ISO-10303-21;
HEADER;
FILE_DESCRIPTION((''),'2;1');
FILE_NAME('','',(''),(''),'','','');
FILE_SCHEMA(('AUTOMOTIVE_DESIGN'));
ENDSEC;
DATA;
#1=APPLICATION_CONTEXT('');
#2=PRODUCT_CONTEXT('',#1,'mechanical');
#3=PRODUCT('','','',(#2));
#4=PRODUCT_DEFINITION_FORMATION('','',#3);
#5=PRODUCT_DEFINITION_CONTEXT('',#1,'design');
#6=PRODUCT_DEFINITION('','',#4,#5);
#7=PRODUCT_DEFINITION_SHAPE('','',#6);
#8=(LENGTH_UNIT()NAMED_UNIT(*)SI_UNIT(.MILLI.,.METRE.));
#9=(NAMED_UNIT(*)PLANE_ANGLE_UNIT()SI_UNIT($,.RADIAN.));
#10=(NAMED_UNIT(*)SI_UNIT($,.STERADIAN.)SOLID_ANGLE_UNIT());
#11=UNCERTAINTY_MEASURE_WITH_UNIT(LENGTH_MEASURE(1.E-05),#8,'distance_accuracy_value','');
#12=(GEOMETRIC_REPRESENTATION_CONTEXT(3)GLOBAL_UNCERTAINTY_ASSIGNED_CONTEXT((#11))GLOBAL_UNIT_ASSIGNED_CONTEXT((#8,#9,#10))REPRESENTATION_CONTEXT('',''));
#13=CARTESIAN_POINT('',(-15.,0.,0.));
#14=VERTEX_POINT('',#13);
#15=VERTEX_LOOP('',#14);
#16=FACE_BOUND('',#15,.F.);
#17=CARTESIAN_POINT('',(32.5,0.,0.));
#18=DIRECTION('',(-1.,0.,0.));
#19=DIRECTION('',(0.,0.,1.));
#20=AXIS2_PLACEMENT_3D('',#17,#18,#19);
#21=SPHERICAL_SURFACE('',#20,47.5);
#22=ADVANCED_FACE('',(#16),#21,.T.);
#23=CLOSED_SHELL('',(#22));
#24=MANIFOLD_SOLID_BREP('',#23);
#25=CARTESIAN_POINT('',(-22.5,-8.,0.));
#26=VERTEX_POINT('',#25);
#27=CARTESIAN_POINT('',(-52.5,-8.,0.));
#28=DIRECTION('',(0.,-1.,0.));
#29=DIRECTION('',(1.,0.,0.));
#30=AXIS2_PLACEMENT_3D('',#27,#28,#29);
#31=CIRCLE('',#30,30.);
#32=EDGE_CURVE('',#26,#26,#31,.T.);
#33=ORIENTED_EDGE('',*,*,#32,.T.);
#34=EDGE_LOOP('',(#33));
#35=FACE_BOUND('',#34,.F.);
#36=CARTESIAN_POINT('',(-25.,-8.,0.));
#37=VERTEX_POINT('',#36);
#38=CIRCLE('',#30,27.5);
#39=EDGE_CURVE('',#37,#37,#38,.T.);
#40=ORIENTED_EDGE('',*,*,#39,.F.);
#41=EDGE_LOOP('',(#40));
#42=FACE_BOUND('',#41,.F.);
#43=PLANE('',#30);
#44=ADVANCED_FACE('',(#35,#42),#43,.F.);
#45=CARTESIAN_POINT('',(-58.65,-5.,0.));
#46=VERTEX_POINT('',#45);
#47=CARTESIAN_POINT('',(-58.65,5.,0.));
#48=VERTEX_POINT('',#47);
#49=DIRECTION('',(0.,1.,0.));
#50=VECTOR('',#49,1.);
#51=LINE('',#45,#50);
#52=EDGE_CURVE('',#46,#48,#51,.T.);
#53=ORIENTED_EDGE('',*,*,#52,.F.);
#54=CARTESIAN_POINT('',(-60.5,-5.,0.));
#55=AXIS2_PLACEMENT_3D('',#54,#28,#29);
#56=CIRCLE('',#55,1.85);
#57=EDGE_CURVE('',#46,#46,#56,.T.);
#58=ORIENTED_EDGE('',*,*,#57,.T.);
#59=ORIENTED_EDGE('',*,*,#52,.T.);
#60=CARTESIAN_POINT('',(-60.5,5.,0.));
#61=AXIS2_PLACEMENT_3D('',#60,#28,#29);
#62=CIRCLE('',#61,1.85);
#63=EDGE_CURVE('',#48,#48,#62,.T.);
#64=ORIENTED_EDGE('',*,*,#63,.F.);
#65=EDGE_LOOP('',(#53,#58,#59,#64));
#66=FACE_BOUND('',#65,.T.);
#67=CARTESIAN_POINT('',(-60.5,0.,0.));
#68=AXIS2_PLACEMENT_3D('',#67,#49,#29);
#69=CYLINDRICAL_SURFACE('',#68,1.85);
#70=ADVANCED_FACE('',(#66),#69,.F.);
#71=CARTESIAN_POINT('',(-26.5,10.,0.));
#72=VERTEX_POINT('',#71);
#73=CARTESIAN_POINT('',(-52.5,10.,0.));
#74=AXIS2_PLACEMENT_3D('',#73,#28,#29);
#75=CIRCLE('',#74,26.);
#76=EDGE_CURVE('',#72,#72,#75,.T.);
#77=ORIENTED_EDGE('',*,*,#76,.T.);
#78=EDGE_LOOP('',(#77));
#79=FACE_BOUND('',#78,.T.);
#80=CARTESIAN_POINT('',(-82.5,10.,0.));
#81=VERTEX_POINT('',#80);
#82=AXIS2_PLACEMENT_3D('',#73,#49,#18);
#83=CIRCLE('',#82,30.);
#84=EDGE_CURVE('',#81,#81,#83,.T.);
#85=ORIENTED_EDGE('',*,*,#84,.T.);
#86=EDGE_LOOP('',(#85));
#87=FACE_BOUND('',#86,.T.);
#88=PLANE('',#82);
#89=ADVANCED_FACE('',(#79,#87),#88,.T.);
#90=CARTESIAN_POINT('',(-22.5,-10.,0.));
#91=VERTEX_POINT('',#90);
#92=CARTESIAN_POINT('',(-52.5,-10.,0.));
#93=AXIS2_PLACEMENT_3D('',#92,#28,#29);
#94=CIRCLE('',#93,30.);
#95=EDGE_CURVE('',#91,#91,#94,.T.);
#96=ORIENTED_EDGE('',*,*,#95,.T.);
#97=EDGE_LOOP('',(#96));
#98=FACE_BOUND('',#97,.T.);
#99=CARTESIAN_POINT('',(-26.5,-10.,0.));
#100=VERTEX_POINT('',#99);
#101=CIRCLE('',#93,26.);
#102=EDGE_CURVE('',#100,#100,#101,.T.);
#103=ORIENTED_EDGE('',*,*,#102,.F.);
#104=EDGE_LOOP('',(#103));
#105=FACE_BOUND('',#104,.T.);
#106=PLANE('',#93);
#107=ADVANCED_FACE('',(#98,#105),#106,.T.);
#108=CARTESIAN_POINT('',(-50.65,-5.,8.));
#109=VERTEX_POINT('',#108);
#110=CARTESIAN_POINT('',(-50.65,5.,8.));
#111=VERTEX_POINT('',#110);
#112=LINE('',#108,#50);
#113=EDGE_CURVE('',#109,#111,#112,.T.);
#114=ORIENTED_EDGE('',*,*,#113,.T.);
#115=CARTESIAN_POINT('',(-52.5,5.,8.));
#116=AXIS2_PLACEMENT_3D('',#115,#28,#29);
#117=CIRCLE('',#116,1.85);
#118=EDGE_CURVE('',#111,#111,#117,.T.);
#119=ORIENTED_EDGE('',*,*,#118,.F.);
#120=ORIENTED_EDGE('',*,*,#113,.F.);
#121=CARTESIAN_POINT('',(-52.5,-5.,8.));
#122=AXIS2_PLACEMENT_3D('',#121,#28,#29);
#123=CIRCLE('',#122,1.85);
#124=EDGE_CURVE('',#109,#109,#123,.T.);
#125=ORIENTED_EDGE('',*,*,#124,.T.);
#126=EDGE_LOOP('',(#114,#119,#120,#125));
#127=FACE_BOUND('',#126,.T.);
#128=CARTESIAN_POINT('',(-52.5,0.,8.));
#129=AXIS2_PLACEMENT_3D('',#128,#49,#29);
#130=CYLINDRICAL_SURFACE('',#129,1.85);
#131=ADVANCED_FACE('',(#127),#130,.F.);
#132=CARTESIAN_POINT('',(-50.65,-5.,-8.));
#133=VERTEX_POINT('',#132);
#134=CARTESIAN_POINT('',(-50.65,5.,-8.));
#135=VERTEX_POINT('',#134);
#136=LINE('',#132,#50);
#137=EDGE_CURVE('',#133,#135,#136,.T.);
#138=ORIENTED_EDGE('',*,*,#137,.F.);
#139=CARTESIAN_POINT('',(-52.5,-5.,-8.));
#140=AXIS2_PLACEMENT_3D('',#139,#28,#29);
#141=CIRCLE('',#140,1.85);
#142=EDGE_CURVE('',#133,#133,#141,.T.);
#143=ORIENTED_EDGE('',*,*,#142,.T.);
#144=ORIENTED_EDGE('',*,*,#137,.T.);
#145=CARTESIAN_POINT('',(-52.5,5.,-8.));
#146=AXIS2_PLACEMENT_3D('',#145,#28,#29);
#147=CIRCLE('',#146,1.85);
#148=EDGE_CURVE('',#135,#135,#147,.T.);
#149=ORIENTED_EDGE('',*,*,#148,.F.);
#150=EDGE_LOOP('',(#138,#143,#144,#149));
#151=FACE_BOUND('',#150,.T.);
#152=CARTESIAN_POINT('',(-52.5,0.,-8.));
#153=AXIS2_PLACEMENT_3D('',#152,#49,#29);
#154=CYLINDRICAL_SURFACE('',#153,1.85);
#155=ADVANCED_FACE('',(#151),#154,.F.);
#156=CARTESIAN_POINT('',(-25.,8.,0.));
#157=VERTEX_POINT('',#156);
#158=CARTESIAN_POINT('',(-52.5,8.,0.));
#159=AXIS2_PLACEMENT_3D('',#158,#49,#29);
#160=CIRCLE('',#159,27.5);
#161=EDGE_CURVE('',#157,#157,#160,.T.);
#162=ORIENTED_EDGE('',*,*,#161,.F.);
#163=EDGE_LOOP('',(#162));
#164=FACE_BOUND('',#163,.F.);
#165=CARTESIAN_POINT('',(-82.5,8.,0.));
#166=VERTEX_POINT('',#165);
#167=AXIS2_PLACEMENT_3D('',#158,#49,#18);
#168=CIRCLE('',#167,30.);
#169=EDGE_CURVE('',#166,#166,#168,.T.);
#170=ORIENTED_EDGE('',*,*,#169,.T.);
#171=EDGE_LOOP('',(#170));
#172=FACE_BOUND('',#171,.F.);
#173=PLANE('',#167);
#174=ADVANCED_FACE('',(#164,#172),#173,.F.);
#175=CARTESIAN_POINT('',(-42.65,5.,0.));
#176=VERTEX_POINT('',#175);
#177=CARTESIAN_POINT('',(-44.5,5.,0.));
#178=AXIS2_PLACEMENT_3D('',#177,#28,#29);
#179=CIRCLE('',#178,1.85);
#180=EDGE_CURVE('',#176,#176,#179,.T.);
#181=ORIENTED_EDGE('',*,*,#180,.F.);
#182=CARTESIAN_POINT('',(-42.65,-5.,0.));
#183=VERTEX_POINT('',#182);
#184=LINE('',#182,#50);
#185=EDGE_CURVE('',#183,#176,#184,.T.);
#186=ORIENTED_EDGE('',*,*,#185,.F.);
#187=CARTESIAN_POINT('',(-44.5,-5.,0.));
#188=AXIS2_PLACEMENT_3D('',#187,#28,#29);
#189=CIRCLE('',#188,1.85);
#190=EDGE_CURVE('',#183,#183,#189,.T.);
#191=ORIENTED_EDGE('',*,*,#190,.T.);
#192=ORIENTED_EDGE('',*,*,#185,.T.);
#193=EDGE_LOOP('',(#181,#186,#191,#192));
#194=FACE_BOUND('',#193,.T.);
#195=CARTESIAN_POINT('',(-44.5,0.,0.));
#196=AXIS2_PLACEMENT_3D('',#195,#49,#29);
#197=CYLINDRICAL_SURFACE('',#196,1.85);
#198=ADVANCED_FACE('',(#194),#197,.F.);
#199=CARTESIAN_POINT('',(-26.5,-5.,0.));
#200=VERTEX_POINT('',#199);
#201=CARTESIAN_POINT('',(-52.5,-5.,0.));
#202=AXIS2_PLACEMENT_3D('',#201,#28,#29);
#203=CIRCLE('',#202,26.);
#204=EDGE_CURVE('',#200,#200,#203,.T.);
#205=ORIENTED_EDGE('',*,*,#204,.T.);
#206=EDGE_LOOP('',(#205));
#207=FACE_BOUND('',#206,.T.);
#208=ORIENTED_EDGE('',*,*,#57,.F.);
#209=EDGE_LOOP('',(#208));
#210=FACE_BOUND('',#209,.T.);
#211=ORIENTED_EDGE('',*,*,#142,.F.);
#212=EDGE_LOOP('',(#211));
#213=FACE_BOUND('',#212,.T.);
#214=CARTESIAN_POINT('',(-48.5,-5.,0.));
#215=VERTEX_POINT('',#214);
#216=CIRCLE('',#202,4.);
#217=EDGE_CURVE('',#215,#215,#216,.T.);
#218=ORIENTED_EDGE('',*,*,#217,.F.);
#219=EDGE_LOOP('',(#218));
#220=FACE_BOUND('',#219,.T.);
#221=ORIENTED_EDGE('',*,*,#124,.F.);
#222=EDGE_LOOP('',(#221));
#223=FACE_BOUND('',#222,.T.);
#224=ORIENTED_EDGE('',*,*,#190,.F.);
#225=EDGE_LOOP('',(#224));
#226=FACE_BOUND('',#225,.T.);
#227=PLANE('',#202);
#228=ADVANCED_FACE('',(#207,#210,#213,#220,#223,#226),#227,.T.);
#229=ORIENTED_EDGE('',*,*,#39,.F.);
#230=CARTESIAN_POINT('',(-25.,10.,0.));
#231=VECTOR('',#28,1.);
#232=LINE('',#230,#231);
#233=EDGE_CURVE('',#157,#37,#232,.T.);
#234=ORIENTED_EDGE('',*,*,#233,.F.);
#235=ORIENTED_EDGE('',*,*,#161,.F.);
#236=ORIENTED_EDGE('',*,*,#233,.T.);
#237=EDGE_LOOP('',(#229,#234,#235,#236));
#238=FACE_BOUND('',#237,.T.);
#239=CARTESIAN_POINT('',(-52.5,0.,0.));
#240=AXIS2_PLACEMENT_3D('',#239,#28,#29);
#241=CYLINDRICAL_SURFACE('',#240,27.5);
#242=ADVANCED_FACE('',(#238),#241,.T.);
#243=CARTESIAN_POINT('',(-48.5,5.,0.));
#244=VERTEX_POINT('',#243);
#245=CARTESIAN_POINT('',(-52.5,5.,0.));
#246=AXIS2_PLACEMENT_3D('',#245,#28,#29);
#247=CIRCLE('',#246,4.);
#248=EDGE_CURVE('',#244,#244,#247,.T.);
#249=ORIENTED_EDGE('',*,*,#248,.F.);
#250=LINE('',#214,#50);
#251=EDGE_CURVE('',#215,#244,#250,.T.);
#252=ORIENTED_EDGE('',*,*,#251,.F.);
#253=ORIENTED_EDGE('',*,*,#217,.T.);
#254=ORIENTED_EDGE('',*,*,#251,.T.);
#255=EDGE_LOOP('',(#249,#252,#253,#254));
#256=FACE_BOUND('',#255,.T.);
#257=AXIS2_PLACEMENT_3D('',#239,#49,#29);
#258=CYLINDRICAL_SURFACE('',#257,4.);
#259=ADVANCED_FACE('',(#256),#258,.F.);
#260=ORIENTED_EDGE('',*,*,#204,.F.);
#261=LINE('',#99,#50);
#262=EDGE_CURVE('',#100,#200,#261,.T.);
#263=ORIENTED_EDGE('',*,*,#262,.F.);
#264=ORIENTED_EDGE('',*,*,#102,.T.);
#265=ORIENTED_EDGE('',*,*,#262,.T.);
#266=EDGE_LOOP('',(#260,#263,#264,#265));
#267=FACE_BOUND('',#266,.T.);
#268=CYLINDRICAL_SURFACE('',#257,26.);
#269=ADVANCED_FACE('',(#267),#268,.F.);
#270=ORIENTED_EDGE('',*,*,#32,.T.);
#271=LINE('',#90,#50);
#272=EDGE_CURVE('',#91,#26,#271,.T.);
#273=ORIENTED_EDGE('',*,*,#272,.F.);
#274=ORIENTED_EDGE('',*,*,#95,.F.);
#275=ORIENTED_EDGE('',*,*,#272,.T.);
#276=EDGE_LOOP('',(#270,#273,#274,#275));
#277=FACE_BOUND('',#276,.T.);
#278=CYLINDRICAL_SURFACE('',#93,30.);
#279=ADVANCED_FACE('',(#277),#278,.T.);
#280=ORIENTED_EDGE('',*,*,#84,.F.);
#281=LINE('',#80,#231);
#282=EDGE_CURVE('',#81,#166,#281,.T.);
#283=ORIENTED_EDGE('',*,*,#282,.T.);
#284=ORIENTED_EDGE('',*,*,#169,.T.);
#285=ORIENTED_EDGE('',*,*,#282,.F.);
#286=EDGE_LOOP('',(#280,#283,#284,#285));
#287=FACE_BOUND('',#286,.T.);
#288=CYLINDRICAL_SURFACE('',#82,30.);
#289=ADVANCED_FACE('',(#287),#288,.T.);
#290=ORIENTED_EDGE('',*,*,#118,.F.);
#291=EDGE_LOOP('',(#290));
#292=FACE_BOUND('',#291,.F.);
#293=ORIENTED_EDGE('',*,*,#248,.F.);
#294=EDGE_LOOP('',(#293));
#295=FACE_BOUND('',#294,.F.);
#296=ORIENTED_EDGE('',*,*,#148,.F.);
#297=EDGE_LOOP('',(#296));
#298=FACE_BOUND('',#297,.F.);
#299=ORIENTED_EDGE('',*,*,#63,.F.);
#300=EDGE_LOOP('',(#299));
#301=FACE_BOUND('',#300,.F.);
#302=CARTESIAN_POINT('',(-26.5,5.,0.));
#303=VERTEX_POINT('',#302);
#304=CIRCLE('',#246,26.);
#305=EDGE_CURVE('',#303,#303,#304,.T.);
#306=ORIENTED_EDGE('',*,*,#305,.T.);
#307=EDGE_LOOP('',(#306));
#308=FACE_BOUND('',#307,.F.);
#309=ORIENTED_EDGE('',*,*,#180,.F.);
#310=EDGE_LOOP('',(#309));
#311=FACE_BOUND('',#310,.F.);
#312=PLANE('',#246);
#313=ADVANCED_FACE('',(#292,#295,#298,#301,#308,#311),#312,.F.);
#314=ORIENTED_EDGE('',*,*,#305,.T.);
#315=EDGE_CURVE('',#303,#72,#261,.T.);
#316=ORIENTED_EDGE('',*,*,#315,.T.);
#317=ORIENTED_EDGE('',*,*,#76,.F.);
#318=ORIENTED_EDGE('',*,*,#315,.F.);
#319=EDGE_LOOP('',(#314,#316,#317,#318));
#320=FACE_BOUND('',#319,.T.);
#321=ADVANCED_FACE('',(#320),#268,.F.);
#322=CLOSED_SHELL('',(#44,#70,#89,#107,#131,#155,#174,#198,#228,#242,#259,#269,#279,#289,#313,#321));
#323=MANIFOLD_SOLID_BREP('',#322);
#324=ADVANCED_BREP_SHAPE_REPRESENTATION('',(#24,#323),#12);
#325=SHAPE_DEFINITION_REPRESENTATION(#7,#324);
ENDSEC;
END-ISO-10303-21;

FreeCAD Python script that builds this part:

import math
import FreeCAD as App
import Part
import Sketcher

doc = App.newDocument("Part")
body = doc.addObject("PartDesign::Body", "Body")

sketch1 = doc.addObject("Sketcher::SketchObject", "Sketch")
body.addObject(sketch1)
sketch1.AttachmentSupport = (doc.XZ_Plane, [""])
sketch1.MapMode = "FlatFace"
sketch1.addGeometry([
    Part.Circle(App.Vector(-52.5, 0, 0), App.Vector(0, 0, 1), 26),
    Part.Circle(App.Vector(-52.5, -8, 0), App.Vector(0, 0, 1), 1.9),
    Part.Circle(App.Vector(-60.5, 0, 0), App.Vector(0, 0, 1), 1.9),
    Part.Circle(App.Vector(-52.5, 0, 0), App.Vector(0, 0, 1), 4),
    Part.Circle(App.Vector(-44.5, 0, 0), App.Vector(0, 0, 1), 1.9),
    Part.Circle(App.Vector(-52.5, 8, 0), App.Vector(0, 0, 1), 1.9),
], False)
sketch1.addConstraint([
    Sketcher.Constraint("Coincident", 3, 3, 0, 3),
    Sketcher.Constraint("Equal", 1, 2),
    Sketcher.Constraint("Equal", 2, 4),
    Sketcher.Constraint("Equal", 4, 5),
    Sketcher.Constraint("Symmetric", 1, 3, 5, 3, -1),
    Sketcher.Constraint("PointOnObject", 0, 3, -1),
    Sketcher.Constraint("PointOnObject", 2, 3, -1),
    Sketcher.Constraint("PointOnObject", 4, 3, -1),
    Sketcher.Constraint("Vertical", 0, 3, 1, 3),
    Sketcher.Constraint("Diameter", 0, 52.0),
    Sketcher.Constraint("Diameter", 3, 8.0),
    Sketcher.Constraint("Diameter", 1, 3.7),
    Sketcher.Constraint("DistanceY", 1, 3, -1, 1, 8.0),
    Sketcher.Constraint("DistanceX", 2, 3, 0, 3, 8.0),
    Sketcher.Constraint("DistanceX", 0, 3, 4, 3, 8.0),
    Sketcher.Constraint("DistanceX", 0, 3, -1, 1, 52.5),
])
pad1 = doc.addObject("PartDesign::Pad", "Pad")
body.addObject(pad1)
pad1.Profile = sketch1
pad1.Length = 10
pad1.Midplane = True

sketch2 = doc.addObject("Sketcher::SketchObject", "Sketch001")
body.addObject(sketch2)
sketch2.AttachmentSupport = (doc.XZ_Plane, [""])
sketch2.MapMode = "FlatFace"
sketch2.addGeometry([
    Part.Circle(App.Vector(-52, 0, 0), App.Vector(0, 0, 1), 28),
    Part.Circle(App.Vector(-52, 0, 0), App.Vector(0, 0, 1), 26),
], False)
sketch2.addConstraint([
    Sketcher.Constraint("Coincident", 1, 3, 0, 3),
    Sketcher.Constraint("PointOnObject", 0, 3, -1),
    Sketcher.Constraint("Diameter", 0, 55.0),
    Sketcher.Constraint("Diameter", 1, 52.0),
    Sketcher.Constraint("DistanceX", 0, 3, -1, 1, 52.5),
])
pad2 = doc.addObject("PartDesign::Pad", "Pad001")
body.addObject(pad2)
pad2.Profile = sketch2
pad2.Length = 20
pad2.Midplane = True

sketch3 = doc.addObject("Sketcher::SketchObject", "Sketch002")
body.addObject(sketch3)
sketch3.AttachmentSupport = (doc.XZ_Plane, [""])
sketch3.MapMode = "FlatFace"
sketch3.AttachmentOffset = App.Placement(App.Vector(0, 0, 10), App.Rotation())
sketch3.addGeometry([
    Part.Circle(App.Vector(-52, 0, 0), App.Vector(0, 0, 1), 30),
    Part.Circle(App.Vector(-52, 0, 0), App.Vector(0, 0, 1), 28),
], False)
sketch3.addConstraint([
    Sketcher.Constraint("Coincident", 1, 3, 0, 3),
    Sketcher.Constraint("PointOnObject", 0, 3, -1),
    Sketcher.Constraint("Diameter", 0, 60.0),
    Sketcher.Constraint("Diameter", 1, 55.0),
    Sketcher.Constraint("DistanceX", 0, 3, -1, 1, 52.5),
])
pad3 = doc.addObject("PartDesign::Pad", "Pad002")
body.addObject(pad3)
pad3.Profile = sketch3
pad3.Length = 2
pad3.Reversed = True

sketch4 = doc.addObject("Sketcher::SketchObject", "Sketch003")
body.addObject(sketch4)
sketch4.AttachmentSupport = (doc.XZ_Plane, [""])
sketch4.MapMode = "FlatFace"
sketch4.AttachmentOffset = App.Placement(App.Vector(0, 0, -10), App.Rotation())
sketch4.addGeometry([
    Part.Circle(App.Vector(-52, 0, 0), App.Vector(0, 0, 1), 30),
    Part.Circle(App.Vector(-52, 0, 0), App.Vector(0, 0, 1), 28),
], False)
sketch4.addConstraint([
    Sketcher.Constraint("Coincident", 1, 3, 0, 3),
    Sketcher.Constraint("PointOnObject", 0, 3, -1),
    Sketcher.Constraint("Diameter", 0, 60.0),
    Sketcher.Constraint("Diameter", 1, 55.0),
    Sketcher.Constraint("DistanceX", 0, 3, -1, 1, 52.5),
])
pad4 = doc.addObject("PartDesign::Pad", "Pad003")
body.addObject(pad4)
pad4.Profile = sketch4
pad4.Length = 2
body2 = doc.addObject("PartDesign::Body", "Body001")

sketch5 = doc.addObject("Sketcher::SketchObject", "Sketch004")
body2.addObject(sketch5)
sketch5.AttachmentSupport = (doc.getObject("XZ_Plane001"), [""])
sketch5.MapMode = "FlatFace"
sketch5.addGeometry([
    Part.LineSegment(App.Vector(-15, 0, 0), App.Vector(80, 0, 0)),
    Part.ArcOfCircle(Part.Circle(App.Vector(32, 0, 0), App.Vector(0, 0, 1), 48), math.radians(0), math.radians(180)),
], False)
sketch5.addConstraint([
    Sketcher.Constraint("Coincident", 0, 1, 1, 2),
    Sketcher.Constraint("Coincident", 1, 1, 0, 2),
    Sketcher.Constraint("Horizontal", 0),
    Sketcher.Constraint("PointOnObject", 1, 3, -1),
    Sketcher.Constraint("PointOnObject", 0, 1, -1),
    Sketcher.Constraint("Radius", 1, 47.5),
    Sketcher.Constraint("DistanceX", 0, 1, -1, 1, 15.0),
])
revolution = doc.addObject("PartDesign::Revolution", "Revolution")
body2.addObject(revolution)
revolution.Profile = sketch5
revolution.ReferenceAxis = (sketch5, ["H_Axis"])
revolution.Angle = 360

doc.recompute()
